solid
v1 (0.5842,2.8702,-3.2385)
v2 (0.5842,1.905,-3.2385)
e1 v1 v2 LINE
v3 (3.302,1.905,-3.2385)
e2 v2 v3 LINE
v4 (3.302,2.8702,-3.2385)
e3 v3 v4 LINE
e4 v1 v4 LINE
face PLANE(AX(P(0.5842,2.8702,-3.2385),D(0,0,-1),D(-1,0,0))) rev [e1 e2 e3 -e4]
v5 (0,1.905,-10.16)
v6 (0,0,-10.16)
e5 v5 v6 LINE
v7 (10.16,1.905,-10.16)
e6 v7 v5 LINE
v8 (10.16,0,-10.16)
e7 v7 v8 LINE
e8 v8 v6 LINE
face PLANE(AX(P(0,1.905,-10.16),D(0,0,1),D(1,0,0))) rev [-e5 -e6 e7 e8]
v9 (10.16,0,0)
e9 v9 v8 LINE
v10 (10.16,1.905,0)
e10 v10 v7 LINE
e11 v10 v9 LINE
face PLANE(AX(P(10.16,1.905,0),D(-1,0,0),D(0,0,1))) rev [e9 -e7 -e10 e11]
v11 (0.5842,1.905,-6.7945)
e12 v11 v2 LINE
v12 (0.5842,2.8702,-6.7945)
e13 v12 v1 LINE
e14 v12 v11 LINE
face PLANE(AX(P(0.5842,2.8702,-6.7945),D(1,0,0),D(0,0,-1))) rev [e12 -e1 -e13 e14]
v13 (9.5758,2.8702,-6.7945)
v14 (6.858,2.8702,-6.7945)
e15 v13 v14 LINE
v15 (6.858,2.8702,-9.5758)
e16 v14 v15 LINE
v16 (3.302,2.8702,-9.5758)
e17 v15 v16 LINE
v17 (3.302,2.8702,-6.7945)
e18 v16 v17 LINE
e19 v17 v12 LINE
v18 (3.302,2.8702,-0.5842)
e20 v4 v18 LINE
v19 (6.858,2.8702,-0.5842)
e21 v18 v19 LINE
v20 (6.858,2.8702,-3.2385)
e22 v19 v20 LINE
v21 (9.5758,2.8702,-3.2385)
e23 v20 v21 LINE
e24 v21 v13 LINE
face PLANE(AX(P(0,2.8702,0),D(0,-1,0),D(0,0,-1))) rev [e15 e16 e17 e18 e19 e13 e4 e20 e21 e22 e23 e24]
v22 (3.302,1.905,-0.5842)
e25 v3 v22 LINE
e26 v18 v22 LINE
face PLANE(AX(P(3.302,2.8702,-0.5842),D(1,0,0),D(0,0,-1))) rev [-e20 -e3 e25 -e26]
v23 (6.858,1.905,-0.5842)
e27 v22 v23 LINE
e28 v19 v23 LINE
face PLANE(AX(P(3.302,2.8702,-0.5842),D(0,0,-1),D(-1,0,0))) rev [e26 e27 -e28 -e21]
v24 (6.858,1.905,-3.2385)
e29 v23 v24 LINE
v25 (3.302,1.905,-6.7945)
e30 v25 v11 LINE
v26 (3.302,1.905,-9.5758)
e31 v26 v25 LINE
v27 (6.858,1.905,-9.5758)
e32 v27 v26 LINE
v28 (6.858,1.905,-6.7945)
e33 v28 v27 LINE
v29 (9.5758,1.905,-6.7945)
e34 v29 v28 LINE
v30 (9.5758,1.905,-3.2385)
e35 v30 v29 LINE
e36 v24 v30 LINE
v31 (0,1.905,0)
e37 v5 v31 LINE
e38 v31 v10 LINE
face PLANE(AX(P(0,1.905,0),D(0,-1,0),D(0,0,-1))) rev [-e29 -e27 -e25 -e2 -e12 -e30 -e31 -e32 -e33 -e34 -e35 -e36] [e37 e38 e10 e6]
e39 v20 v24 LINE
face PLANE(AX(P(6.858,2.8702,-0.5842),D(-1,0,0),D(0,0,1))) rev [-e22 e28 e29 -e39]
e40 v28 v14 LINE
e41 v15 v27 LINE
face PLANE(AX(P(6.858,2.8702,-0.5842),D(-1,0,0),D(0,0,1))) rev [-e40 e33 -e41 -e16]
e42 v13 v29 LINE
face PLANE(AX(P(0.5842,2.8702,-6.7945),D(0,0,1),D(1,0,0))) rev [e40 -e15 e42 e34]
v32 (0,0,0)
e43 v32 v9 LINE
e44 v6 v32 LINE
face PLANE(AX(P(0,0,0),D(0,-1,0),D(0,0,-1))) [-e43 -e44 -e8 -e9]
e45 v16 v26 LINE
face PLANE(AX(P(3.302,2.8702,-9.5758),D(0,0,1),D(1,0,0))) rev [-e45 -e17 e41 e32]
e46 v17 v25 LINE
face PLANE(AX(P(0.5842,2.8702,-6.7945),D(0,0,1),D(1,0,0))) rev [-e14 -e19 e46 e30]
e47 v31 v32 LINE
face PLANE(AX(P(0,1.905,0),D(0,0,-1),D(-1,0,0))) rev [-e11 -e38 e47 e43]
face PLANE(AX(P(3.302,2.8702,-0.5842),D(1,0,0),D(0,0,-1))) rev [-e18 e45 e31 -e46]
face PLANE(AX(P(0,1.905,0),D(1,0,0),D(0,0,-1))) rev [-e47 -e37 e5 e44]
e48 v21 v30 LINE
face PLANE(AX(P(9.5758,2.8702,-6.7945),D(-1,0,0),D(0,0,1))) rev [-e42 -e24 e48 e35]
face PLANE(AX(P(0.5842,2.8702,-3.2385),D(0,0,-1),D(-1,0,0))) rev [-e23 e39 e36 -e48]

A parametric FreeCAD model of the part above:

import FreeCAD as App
import Part
import Sketcher

V = App.Vector
Q = App.Units.Quantity


def add_polygon(sketch, points):
    """Adds a closed chain of lines whose ends are joined by coincident constraints."""
    first, n = sketch.GeometryCount, len(points)
    for a, b in zip(points, points[1:] + points[:1]):
        sketch.addGeometry(Part.LineSegment(App.Vector(*a, 0), App.Vector(*b, 0)), False)
    for i in range(n):
        sketch.addConstraint(Sketcher.Constraint("Coincident", first + i, 2, first + (i + 1) % n, 1))

doc = App.newDocument("Part")
body = doc.addObject("PartDesign::Body", "Body")

sketch1 = body.newObject("Sketcher::SketchObject", "Sketch")
sketch1.AttachmentSupport = (doc.getObject("XZ_Plane"), [""])
sketch1.MapMode = "FlatFace"
add_polygon(sketch1, [(0, -10), (0, 0), (10, 0), (10, -10)])
sketch1.addConstraint([
    Sketcher.Constraint("Vertical", 0),
    Sketcher.Constraint("Horizontal", 1),
    Sketcher.Constraint("Vertical", 2),
    Sketcher.Constraint("Horizontal", 3),
    Sketcher.Constraint("Coincident", 0, 2, -1, 1),
    Sketcher.Constraint("Equal", 3, 0),
    Sketcher.Constraint("DistanceX", 1, 1, 1, 2, Q("0.4 in")),
])
pad1 = body.newObject("PartDesign::Pad", "Pad")
pad1.Profile = sketch1
pad1.Length = Q("0.075 in")
pad1.Reversed = True

sketch2 = body.newObject("Sketcher::SketchObject", "Sketch001")
sketch2.AttachmentSupport = (doc.getObject("XZ_Plane"), [""])
sketch2.MapMode = "FlatFace"
add_polygon(sketch2, [(3.3, -9.6), (3.3, -0.6), (6.9, -0.6), (6.9, -9.6)])
sketch2.addConstraint([
    Sketcher.Constraint("Vertical", 0),
    Sketcher.Constraint("Horizontal", 1),
    Sketcher.Constraint("Vertical", 2),
    Sketcher.Constraint("Horizontal", 3),
    Sketcher.Constraint("DistanceX", 1, 1, 1, 2, Q("0.14 in")),
    Sketcher.Constraint("DistanceY", 0, 1, 0, 2, Q("0.354 in")),
    Sketcher.Constraint("DistanceX", -1, 1, 0, 2, Q("0.13 in")),
    Sketcher.Constraint("DistanceY", 0, 2, -1, 1, Q("0.023 in")),
])
pad2 = body.newObject("PartDesign::Pad", "Pad001")
pad2.Profile = sketch2
pad2.Length = Q("0.113 in")
pad2.Reversed = True

sketch3 = body.newObject("Sketcher::SketchObject", "Sketch002")
sketch3.AttachmentSupport = (doc.getObject("XZ_Plane"), [""])
sketch3.MapMode = "FlatFace"
add_polygon(sketch3, [(0.6, -6.8), (0.6, -3.2), (9.6, -3.2), (9.6, -6.8)])
sketch3.addConstraint([
    Sketcher.Constraint("Vertical", 0),
    Sketcher.Constraint("Horizontal", 1),
    Sketcher.Constraint("Vertical", 2),
    Sketcher.Constraint("Horizontal", 3),
    Sketcher.Constraint("DistanceY", 0, 1, 0, 2, Q("0.14 in")),
    Sketcher.Constraint("DistanceX", 1, 1, 1, 2, Q("0.354 in")),
    Sketcher.Constraint("DistanceX", -1, 1, 0, 2, Q("0.023 in")),
    Sketcher.Constraint("DistanceY", 0, 2, -1, 1, Q("0.1275 in")),
])
pad3 = body.newObject("PartDesign::Pad", "Pad002")
pad3.Profile = sketch3
pad3.Length = Q("0.113 in")
pad3.Reversed = True

doc.recompute()
